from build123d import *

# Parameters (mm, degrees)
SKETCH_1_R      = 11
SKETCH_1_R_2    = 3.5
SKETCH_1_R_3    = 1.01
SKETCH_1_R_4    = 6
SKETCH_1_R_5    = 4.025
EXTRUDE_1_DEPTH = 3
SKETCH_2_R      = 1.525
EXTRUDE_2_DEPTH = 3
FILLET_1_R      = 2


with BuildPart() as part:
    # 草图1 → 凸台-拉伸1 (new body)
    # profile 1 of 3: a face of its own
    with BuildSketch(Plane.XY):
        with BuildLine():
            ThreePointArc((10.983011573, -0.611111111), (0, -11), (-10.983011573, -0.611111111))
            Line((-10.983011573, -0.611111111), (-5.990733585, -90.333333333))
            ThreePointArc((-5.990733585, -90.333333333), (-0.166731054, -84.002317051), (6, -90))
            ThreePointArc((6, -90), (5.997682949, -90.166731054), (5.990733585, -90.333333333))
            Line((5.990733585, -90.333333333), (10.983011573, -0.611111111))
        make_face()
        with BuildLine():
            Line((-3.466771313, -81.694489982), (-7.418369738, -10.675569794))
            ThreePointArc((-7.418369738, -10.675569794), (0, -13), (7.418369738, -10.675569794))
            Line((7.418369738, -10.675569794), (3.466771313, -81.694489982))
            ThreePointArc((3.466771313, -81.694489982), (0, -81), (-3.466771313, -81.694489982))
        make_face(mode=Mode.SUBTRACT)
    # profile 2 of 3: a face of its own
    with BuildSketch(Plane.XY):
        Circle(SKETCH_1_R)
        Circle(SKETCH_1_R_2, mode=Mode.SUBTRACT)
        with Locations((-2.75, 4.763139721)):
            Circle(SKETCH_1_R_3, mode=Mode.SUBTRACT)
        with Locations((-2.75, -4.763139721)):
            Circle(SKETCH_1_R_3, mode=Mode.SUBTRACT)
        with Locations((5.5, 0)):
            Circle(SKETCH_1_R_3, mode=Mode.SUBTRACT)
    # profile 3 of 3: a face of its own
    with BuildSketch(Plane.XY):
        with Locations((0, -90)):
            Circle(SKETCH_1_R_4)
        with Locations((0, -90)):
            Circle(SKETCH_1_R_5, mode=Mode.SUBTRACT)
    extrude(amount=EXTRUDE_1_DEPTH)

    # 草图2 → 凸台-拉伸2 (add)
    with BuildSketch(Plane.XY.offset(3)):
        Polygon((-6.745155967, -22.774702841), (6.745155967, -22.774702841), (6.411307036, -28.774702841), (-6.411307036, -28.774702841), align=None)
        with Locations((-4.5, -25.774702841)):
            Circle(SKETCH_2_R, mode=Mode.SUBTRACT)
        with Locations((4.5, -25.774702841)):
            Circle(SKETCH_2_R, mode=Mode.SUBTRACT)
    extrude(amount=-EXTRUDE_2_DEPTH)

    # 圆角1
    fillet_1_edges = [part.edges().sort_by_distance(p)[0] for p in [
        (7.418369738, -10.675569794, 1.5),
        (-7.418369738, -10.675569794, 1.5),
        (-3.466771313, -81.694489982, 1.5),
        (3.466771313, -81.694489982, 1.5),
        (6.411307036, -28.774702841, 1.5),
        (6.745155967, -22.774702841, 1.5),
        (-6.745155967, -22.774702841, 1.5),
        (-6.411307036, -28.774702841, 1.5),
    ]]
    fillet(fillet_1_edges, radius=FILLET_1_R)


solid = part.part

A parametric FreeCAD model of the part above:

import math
import FreeCAD as App
import Part
import Sketcher

V = App.Vector
Q = App.Units.Quantity


def edges_at(feature, points):
    """Names of the edges that pass closest to the given points."""
    edges = feature.Shape.Edges
    near = lambda p: min(range(len(edges)), key=lambda i: edges[i].distToShape(Part.Vertex(*p))[0])
    return sorted({f"Edge{near(p) + 1}" for p in points})


def add_polygon(sketch, points):
    """Adds a closed chain of lines whose ends are joined by coincident constraints."""
    first, n = sketch.GeometryCount, len(points)
    for a, b in zip(points, points[1:] + points[:1]):
        sketch.addGeometry(Part.LineSegment(App.Vector(*a, 0), App.Vector(*b, 0)), False)
    for i in range(n):
        sketch.addConstraint(Sketcher.Constraint("Coincident", first + i, 2, first + (i + 1) % n, 1))

doc = App.newDocument("Part")
params = doc.addObject("Spreadsheet::Sheet", "Params")
for row, (alias, value) in enumerate([
    ("sketch1_diameter", "7 mm"),
    ("sketch1_radius", "11 mm"),
    ("sketch1_radius2", "6 mm"),
    ("sketch1_radius3", "9 mm"),
    ("sketch1_radius4", "13 mm"),
    ("pad1_length", "3 mm"),
    ("sketch2_diameter", "3.05 mm"),
    ("pad2_length", "3 mm"),
    ("fillet_radius", "2 mm"),
], start=1):
    params.set(f"A{row}", alias)
    params.set(f"B{row}", "=" + value)
    params.setAlias(f"B{row}", alias)

body = doc.addObject("PartDesign::Body", "Body")

sketch1 = body.newObject("Sketcher::SketchObject", "Sketch")
sketch1.AttachmentSupport = (doc.getObject("XY_Plane"), [""])
sketch1.MapMode = "FlatFace"
sketch1.addGeometry([
    Part.LineSegment(V(6, -90.3, 0), V(11, -0.6, 0)),
    Part.ArcOfCircle(Part.Circle(V(0, 0, 0), V(0, 0, 1), 11), math.radians(-3), math.radians(183)),
    Part.LineSegment(V(-11, -0.6, 0), V(-6, -90.3, 0)),
    Part.ArcOfCircle(Part.Circle(V(0, -90, 0), V(0, 0, 1), 6), math.radians(-177), math.radians(-3)),
    Part.ArcOfCircle(Part.Circle(V(0, -90, 0), V(0, 0, 1), 9), math.radians(67), math.radians(113)),
    Part.LineSegment(V(-3.5, -81.7, 0), V(-7.4, -10.7, 0)),
    Part.ArcOfCircle(Part.Circle(V(0, 0, 0), V(0, 0, 1), 13), math.radians(-125), math.radians(-55)),
    Part.LineSegment(V(7.4, -10.7, 0), V(3.5, -81.7, 0)),
    Part.Circle(V(-2.8, 4.8, 0), V(0, 0, 1), 1),
    Part.Circle(V(-2.8, -4.8, 0), V(0, 0, 1), 1),
    Part.Circle(V(0, 0, 0), V(0, 0, 1), 3.5),
    Part.Circle(V(5.5, 0, 0), V(0, 0, 1), 1),
    Part.Circle(V(0, -90, 0), V(0, 0, 1), 4),
], False)
sketch1.addConstraint([
    Sketcher.Constraint("Tangent", 0, 2, 1, 1),
    Sketcher.Constraint("Tangent", 1, 2, 2, 1),
    Sketcher.Constraint("Tangent", 2, 2, 3, 1),
    Sketcher.Constraint("Tangent", 3, 2, 0, 1),
    Sketcher.Constraint("Coincident", 4, 2, 5, 1),
    Sketcher.Constraint("Coincident", 5, 2, 6, 1),
    Sketcher.Constraint("Coincident", 6, 2, 7, 1),
    Sketcher.Constraint("Coincident", 7, 2, 4, 1),
    Sketcher.Constraint("Coincident", 1, 3, -1, 1),
    Sketcher.Constraint("Coincident", 6, 3, -1, 1),
    Sketcher.Constraint("Coincident", 10, 3, -1, 1),
    Sketcher.Constraint("Coincident", 4, 3, 3, 3),
    Sketcher.Constraint("Coincident", 12, 3, 3, 3),
    Sketcher.Constraint("Equal", 8, 9),
    Sketcher.Constraint("Equal", 9, 11),
    Sketcher.Constraint("Symmetric", 4, 2, 7, 2, -2),
    Sketcher.Constraint("Symmetric", 8, 3, 9, 3, -1),
    Sketcher.Constraint("PointOnObject", 11, 3, -1),
    Sketcher.Constraint("Parallel", 2, 5),
    Sketcher.Constraint("Parallel", 0, 7),
    Sketcher.Constraint("Diameter", 10, Q("7 mm")),
    Sketcher.Constraint("Radius", 1, Q("11 mm")),
    Sketcher.Constraint("Radius", 3, Q("6 mm")),
    Sketcher.Constraint("Radius", 4, Q("9 mm")),
    Sketcher.Constraint("Radius", 6, Q("13 mm")),
    Sketcher.Constraint("Diameter", 8, Q("2.02 mm")),
    Sketcher.Constraint("Diameter", 12, Q("8.05 mm")),
    Sketcher.Constraint("DistanceY", 3, 3, -1, 1, Q("90 mm")),
    Sketcher.Constraint("DistanceX", -1, 1, 11, 3, Q("5.5 mm")),
    Sketcher.Constraint("DistanceX", 8, 3, -1, 1, Q("2.75 mm")),
    Sketcher.Constraint("Distance", 5, Q("71.128772 mm")),
    Sketcher.Constraint("DistanceY", -1, 1, 8, 3, Q("4.76314 mm")),
])
sketch1.setExpression("Constraints[20]", "Params.sketch1_diameter")
sketch1.setExpression("Constraints[21]", "Params.sketch1_radius")
sketch1.setExpression("Constraints[22]", "Params.sketch1_radius2")
sketch1.setExpression("Constraints[23]", "Params.sketch1_radius3")
sketch1.setExpression("Constraints[24]", "Params.sketch1_radius4")
pad1 = body.newObject("PartDesign::Pad", "Pad")
pad1.Profile = sketch1
pad1.setExpression("Length", "Params.pad1_length")

sketch2 = body.newObject("Sketcher::SketchObject", "Sketch001")
sketch2.AttachmentSupport = (doc.getObject("XY_Plane"), [""])
sketch2.MapMode = "FlatFace"
sketch2.AttachmentOffset = App.Placement(V(0, 0, 3), App.Rotation())
add_polygon(sketch2, [(6.7, -22.8), (-6.7, -22.8), (-6.4, -28.8), (6.4, -28.8)])
sketch2.addGeometry(Part.Circle(V(4.5, -25.8, 0), V(0, 0, 1), 1.5), False)
sketch2.addGeometry(Part.Circle(V(-4.5, -25.8, 0), V(0, 0, 1), 1.5), False)
sketch2.addConstraint([
    Sketcher.Constraint("Horizontal", 0),
    Sketcher.Constraint("Horizontal", 2),
    Sketcher.Constraint("Equal", 4, 5),
    Sketcher.Constraint("Symmetric", 4, 3, 5, 3, -2),
    Sketcher.Constraint("Equal", 1, 3),
    Sketcher.Constraint("Diameter", 4, Q("3.05 mm")),
    Sketcher.Constraint("DistanceX", 5, 3, 4, 3, Q("9 mm")),
    Sketcher.Constraint("DistanceY", 5, 3, 0, 2, Q("3 mm")),
    Sketcher.Constraint("DistanceY", 1, 2, 5, 3, Q("3 mm")),
    Sketcher.Constraint("DistanceX", 0, 2, 0, 1, Q("13.490312 mm")),
    Sketcher.Constraint("Distance", 1, Q("6.009281 mm")),
    Sketcher.Constraint("DistanceY", 4, 3, -1, 1, Q("25.774703 mm")),
    Sketcher.Constraint("DistanceX", 0, 2, -1, 1, Q("6.745156 mm")),
])
sketch2.setExpression("Constraints[9]", "Params.sketch2_diameter")
pad2 = body.newObject("PartDesign::Pad", "Pad001")
pad2.Profile = sketch2
pad2.setExpression("Length", "Params.pad2_length")
pad2.Reversed = True
doc.recompute()

fillet = body.newObject("PartDesign::Fillet", "Fillet")
fillet.Base = (pad2, edges_at(pad2, [
    (7.418, -10.676, 1.5),
    (-7.418, -10.676, 1.5),
    (-3.467, -81.694, 1.5),
    (3.467, -81.694, 1.5),
    (6.411, -28.775, 1.5),
    (6.745, -22.775, 1.5),
    (-6.745, -22.775, 1.5),
    (-6.411, -28.775, 1.5),
]))
fillet.setExpression("Radius", "Params.fillet_radius")

doc.recompute()
